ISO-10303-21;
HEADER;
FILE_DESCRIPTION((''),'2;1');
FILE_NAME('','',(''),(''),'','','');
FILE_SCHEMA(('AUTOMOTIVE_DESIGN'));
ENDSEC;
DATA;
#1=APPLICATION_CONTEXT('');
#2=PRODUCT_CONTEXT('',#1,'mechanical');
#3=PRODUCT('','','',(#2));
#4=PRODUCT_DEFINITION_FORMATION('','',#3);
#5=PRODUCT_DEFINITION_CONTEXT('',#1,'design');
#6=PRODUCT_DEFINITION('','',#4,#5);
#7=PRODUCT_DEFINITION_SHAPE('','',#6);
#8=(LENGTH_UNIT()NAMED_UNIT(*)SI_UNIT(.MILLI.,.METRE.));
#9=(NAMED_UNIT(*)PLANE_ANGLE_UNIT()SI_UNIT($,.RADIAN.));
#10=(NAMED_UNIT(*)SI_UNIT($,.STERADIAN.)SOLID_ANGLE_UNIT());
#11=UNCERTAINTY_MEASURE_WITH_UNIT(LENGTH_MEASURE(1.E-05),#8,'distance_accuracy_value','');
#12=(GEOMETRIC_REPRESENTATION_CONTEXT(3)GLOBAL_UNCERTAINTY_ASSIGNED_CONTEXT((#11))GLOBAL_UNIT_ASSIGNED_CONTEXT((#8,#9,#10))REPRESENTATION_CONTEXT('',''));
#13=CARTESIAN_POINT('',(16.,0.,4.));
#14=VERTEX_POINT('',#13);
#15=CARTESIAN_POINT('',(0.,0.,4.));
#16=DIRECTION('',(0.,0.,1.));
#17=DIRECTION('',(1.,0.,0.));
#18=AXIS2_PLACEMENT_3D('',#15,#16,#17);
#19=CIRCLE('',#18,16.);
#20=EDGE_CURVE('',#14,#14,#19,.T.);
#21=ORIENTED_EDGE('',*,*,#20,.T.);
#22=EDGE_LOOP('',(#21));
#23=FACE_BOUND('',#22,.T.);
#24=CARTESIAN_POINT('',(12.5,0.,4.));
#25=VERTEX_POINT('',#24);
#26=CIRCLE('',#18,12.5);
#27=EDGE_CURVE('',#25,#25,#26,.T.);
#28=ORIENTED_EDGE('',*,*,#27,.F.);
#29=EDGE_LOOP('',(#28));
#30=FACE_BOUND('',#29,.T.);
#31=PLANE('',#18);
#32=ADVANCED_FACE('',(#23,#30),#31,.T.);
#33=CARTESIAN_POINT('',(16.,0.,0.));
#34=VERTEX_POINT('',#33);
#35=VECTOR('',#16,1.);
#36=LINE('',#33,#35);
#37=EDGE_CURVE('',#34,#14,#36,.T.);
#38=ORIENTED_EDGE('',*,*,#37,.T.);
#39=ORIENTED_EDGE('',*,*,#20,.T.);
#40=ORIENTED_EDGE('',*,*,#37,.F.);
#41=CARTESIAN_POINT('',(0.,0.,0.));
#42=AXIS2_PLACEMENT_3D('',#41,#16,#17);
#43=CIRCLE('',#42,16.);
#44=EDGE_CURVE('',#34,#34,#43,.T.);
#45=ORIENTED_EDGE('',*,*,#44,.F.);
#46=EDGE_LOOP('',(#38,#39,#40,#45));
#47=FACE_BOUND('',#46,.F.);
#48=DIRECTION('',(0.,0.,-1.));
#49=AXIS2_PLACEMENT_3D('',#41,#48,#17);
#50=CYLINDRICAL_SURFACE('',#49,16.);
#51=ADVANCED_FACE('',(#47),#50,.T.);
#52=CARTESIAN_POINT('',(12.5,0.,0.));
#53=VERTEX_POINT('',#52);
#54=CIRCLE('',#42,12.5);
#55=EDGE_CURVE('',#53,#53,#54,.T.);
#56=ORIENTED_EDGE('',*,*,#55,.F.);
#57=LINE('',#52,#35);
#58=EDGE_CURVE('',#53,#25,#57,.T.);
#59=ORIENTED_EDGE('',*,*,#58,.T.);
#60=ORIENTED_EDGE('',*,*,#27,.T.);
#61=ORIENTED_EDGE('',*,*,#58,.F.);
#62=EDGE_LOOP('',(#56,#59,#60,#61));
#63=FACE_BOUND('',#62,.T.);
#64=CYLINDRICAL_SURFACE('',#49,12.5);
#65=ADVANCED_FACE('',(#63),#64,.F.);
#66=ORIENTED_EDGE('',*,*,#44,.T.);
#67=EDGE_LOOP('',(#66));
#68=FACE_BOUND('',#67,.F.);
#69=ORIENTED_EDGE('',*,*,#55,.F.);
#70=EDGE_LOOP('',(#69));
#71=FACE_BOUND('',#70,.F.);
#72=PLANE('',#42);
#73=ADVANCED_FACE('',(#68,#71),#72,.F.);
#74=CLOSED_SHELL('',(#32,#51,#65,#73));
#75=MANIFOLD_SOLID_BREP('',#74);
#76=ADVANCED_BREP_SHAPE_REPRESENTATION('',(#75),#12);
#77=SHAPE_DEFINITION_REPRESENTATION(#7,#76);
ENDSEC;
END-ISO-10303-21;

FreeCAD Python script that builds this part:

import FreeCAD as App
import Part
import Sketcher

V = App.Vector
Q = App.Units.Quantity

doc = App.newDocument("Part")
params = doc.addObject("Spreadsheet::Sheet", "Params")
for row, (alias, value) in enumerate([
    ("sketch1_diameter", "32 mm"),
    ("sketch1_diameter2", "25 mm"),
    ("pad1_length", "4 mm"),
], start=1):
    params.set(f"A{row}", alias)
    params.set(f"B{row}", "=" + value)
    params.setAlias(f"B{row}", alias)

body = doc.addObject("PartDesign::Body", "Body")

sketch1 = doc.addObject("Sketcher::SketchObject", "Sketch")
body.addObject(sketch1)
sketch1.AttachmentSupport = (doc.XY_Plane, [""])
sketch1.MapMode = "FlatFace"
sketch1.addGeometry([
    Part.Circle(V(0, 0, 0), V(0, 0, 1), 16),
    Part.Circle(V(0, 0, 0), V(0, 0, 1), 12),
], False)
sketch1.addConstraint([
    Sketcher.Constraint("Coincident", 0, 3, -1, 1),
    Sketcher.Constraint("Coincident", 1, 3, -1, 1),
    Sketcher.Constraint("Diameter", 0, Q("32 mm")),
    Sketcher.Constraint("Diameter", 1, Q("25 mm")),
])
sketch1.setExpression("Constraints[2]", "Params.sketch1_diameter")
sketch1.setExpression("Constraints[3]", "Params.sketch1_diameter2")
pad1 = doc.addObject("PartDesign::Pad", "Pad")
body.addObject(pad1)
pad1.Profile = sketch1
pad1.setExpression("Length", "Params.pad1_length")

doc.recompute()
